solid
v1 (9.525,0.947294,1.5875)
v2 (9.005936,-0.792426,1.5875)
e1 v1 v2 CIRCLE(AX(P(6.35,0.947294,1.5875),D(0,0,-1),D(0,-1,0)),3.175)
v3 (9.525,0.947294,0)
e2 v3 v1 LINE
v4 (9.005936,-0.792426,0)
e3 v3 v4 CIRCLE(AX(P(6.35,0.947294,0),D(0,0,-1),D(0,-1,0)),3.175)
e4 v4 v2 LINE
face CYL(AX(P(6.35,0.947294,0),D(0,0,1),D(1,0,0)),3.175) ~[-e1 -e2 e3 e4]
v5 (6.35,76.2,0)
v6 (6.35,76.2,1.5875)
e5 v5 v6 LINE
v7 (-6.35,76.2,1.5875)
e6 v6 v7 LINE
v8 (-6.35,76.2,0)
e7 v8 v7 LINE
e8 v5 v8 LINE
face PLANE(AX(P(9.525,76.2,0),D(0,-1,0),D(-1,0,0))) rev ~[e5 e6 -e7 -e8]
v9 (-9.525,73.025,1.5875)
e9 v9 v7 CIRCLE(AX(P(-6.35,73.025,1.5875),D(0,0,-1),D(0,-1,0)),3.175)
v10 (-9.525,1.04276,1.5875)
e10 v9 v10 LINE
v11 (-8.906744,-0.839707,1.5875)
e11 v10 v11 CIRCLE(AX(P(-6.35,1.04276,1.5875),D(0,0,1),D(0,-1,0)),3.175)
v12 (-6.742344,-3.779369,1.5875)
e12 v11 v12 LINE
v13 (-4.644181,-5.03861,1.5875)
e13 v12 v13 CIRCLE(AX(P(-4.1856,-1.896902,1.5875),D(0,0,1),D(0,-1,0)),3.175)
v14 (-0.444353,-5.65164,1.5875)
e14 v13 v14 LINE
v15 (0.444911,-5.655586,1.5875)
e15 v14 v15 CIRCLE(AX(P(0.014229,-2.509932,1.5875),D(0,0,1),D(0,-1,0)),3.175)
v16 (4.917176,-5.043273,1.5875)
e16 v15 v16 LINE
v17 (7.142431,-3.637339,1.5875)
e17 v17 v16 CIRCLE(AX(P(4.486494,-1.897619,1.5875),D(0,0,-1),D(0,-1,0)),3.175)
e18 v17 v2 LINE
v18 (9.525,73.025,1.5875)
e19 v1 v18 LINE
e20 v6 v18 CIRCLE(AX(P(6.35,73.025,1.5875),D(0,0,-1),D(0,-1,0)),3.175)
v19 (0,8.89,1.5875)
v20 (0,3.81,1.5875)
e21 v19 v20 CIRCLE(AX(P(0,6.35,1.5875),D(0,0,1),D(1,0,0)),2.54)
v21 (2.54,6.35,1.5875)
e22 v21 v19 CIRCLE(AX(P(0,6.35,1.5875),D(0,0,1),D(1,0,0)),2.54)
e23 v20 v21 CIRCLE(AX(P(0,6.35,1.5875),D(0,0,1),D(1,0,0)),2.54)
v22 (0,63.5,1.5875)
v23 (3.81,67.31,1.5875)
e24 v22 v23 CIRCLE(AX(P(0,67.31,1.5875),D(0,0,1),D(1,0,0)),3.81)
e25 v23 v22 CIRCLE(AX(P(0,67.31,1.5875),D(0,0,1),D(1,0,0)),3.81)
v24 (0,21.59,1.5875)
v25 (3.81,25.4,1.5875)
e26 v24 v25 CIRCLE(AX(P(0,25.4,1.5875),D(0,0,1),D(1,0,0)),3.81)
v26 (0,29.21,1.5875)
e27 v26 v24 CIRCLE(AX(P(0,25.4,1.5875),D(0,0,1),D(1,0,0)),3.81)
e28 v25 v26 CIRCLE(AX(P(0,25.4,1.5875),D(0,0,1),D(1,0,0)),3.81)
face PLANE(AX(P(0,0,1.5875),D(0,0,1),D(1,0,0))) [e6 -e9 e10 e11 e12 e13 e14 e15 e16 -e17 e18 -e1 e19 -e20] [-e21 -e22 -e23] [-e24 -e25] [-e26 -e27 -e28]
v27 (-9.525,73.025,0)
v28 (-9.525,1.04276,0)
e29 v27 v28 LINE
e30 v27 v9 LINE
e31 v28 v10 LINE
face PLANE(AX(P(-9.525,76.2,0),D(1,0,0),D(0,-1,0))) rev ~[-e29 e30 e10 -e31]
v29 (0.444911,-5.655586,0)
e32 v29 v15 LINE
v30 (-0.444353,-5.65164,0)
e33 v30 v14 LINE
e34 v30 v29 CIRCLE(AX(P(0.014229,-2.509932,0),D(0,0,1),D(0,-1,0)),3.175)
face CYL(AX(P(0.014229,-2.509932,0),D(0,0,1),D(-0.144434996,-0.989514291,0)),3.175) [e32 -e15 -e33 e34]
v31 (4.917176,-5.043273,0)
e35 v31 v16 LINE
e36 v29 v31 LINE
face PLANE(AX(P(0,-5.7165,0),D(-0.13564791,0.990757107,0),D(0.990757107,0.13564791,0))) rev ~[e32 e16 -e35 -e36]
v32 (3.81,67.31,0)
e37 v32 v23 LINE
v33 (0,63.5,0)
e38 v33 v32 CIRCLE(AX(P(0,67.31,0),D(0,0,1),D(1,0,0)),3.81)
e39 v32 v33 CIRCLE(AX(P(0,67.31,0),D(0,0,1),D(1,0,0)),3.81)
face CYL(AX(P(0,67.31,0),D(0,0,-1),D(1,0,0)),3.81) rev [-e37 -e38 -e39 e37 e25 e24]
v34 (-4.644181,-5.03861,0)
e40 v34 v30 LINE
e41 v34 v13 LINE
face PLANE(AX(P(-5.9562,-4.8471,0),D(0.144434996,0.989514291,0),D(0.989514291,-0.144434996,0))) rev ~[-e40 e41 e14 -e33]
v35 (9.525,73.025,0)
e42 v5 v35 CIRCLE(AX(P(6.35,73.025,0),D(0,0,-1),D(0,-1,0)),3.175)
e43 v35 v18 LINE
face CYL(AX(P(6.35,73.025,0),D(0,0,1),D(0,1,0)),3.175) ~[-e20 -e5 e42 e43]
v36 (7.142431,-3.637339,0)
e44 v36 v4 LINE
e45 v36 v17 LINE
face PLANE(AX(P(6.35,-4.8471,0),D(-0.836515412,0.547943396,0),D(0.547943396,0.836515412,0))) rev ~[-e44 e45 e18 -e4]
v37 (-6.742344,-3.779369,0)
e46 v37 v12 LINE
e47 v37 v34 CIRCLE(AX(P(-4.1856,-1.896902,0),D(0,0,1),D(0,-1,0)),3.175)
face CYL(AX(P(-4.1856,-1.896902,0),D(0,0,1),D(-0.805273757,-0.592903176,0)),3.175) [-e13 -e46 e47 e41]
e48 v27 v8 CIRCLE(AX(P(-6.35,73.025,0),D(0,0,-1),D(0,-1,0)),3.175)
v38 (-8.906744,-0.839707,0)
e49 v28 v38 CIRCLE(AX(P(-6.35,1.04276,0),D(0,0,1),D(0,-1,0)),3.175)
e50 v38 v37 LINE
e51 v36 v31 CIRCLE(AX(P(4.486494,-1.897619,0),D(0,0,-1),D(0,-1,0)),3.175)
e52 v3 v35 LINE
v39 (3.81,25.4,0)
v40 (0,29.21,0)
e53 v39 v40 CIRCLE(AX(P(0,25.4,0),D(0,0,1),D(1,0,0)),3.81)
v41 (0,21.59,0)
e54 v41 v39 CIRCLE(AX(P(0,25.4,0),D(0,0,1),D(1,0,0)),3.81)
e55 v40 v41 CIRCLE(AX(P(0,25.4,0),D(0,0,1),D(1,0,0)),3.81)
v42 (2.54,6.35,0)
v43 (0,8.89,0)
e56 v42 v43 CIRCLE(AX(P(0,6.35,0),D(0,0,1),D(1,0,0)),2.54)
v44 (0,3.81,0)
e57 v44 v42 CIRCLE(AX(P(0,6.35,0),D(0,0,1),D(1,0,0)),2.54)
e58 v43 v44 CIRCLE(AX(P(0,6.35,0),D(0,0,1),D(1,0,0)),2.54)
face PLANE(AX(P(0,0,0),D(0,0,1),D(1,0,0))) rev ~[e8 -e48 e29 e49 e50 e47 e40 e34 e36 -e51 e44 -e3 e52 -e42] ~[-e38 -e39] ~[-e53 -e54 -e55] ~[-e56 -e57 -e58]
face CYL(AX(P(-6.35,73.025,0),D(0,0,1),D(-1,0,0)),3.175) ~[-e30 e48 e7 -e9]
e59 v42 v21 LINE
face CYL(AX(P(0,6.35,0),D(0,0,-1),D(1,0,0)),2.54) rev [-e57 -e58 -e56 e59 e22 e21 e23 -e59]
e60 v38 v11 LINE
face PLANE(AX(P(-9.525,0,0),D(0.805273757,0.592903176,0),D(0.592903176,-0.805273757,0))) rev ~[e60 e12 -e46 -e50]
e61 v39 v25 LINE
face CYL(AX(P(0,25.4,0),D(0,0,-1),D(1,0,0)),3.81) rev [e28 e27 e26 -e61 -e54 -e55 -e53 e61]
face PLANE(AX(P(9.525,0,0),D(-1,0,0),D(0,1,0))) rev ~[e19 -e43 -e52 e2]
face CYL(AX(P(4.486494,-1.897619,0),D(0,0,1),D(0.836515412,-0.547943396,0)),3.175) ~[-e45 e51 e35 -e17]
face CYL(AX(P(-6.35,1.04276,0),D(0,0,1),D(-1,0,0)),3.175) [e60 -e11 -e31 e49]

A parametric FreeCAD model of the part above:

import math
import FreeCAD as App
import Part
import Sketcher

V = App.Vector
Q = App.Units.Quantity


def edges_at(feature, points):
    """Names of the edges that pass closest to the given points."""
    edges = feature.Shape.Edges
    near = lambda p: min(range(len(edges)), key=lambda i: edges[i].distToShape(Part.Vertex(*p))[0])
    return sorted({f"Edge{near(p) + 1}" for p in points})

doc = App.newDocument("Part")
body = doc.addObject("PartDesign::Body", "Body")

sketch1 = body.newObject("Sketcher::SketchObject", "Sketch")
sketch1.AttachmentSupport = (doc.getObject("XY_Plane"), [""])
sketch1.MapMode = "FlatFace"
sketch1.addGeometry(Part.LineSegment(V(-9.5, 76.2, 0), V(-9.5, 0, 0)), False)
sketch1.addGeometry(Part.LineSegment(V(-9.5, 0, 0), V(-6, -4.8, 0)), False)
sketch1.addGeometry(Part.LineSegment(V(-6, -4.8, 0), V(0, -5.7, 0)), False)
sketch1.addGeometry(Part.LineSegment(V(0, -5.7, 0), V(6.3, -4.8, 0)), False)
sketch1.addGeometry(Part.LineSegment(V(6.3, -4.8, 0), V(9.5, 0, 0)), False)
sketch1.addGeometry(Part.LineSegment(V(9.5, 0, 0), V(9.5, 76.2, 0)), False)
sketch1.addGeometry(Part.LineSegment(V(9.5, 76.2, 0), V(-9.5, 76.2, 0)), False)
sketch1.addGeometry(Part.ArcOfCircle(Part.Circle(V(0, 6.3, 0), V(0, 0, 1), 2.5), math.radians(90), math.radians(270)), False)
sketch1.addGeometry(Part.ArcOfCircle(Part.Circle(V(0, 6.3, 0), V(0, 0, 1), 2.5), math.radians(-90), math.radians(90)), False)
sketch1.addGeometry(Part.ArcOfCircle(Part.Circle(V(0, 25.4, 0), V(0, 0, 1), 3.8), math.radians(90), math.radians(270)), False)
sketch1.addGeometry(Part.ArcOfCircle(Part.Circle(V(0, 25.4, 0), V(0, 0, 1), 3.8), math.radians(-90), math.radians(90)), False)
sketch1.addGeometry(Part.Circle(V(0, 67.3, 0), V(0, 0, 1), 3.8), False)
sketch1.addConstraint(Sketcher.Constraint("Coincident", 0, 2, 1, 1))
sketch1.addConstraint(Sketcher.Constraint("Coincident", 1, 2, 2, 1))
sketch1.addConstraint(Sketcher.Constraint("Coincident", 2, 2, 3, 1))
sketch1.addConstraint(Sketcher.Constraint("Coincident", 3, 2, 4, 1))
sketch1.addConstraint(Sketcher.Constraint("Coincident", 4, 2, 5, 1))
sketch1.addConstraint(Sketcher.Constraint("Coincident", 5, 2, 6, 1))
sketch1.addConstraint(Sketcher.Constraint("Coincident", 6, 2, 0, 1))
sketch1.addConstraint(Sketcher.Constraint("Tangent", 7, 1, 8, 2))
sketch1.addConstraint(Sketcher.Constraint("Coincident", 8, 1, 7, 2))
sketch1.addConstraint(Sketcher.Constraint("Tangent", 9, 1, 10, 2))
sketch1.addConstraint(Sketcher.Constraint("Coincident", 10, 1, 9, 2))
sketch1.addConstraint(Sketcher.Constraint("Vertical", 0))
sketch1.addConstraint(Sketcher.Constraint("Vertical", 5))
sketch1.addConstraint(Sketcher.Constraint("Horizontal", 6))
sketch1.addConstraint(Sketcher.Constraint("Equal", 10, 11))
sketch1.addConstraint(Sketcher.Constraint("Symmetric", 0, 2, 4, 2, -1, 1))
sketch1.addConstraint(Sketcher.Constraint("PointOnObject", 7, 3, -2))
sketch1.addConstraint(Sketcher.Constraint("PointOnObject", 9, 3, -2))
sketch1.addConstraint(Sketcher.Constraint("PointOnObject", 11, 3, -2))
sketch1.addConstraint(Sketcher.Constraint("PointOnObject", 0, 2, -1))
sketch1.addConstraint(Sketcher.Constraint("PointOnObject", 2, 2, -2))
sketch1.addConstraint(Sketcher.Constraint("PointOnObject", 7, 1, -2))
sketch1.addConstraint(Sketcher.Constraint("PointOnObject", 8, 1, -2))
sketch1.addConstraint(Sketcher.Constraint("PointOnObject", 9, 1, -2))
sketch1.addConstraint(Sketcher.Constraint("PointOnObject", 10, 1, -2))
sketch1.addConstraint(Sketcher.Constraint("Horizontal", 1, 2, 3, 2))
sketch1.addConstraint(Sketcher.Constraint("Equal", 1, 2))
sketch1.addConstraint(Sketcher.Constraint("Diameter", 11, Q("0.3 in")))
sketch1.addConstraint(Sketcher.Constraint("Radius", 7, Q("0.1 in")))
sketch1.addConstraint(Sketcher.Constraint("DistanceY", 0, 2, 0, 1, Q("3 in")))
sketch1.addConstraint(Sketcher.Constraint("DistanceX", 6, 2, 6, 1, Q("0.75 in")))
sketch1.addConstraint(Sketcher.Constraint("DistanceY", -1, 1, 7, 3, Q("0.25 in")))
sketch1.addConstraint(Sketcher.Constraint("DistanceX", -1, 1, 3, 2, Q("0.25 in")))
sketch1.addConstraint(Sketcher.Constraint("DistanceY", 7, 3, 9, 3, Q("0.75 in")))
sketch1.addConstraint(Sketcher.Constraint("DistanceY", 7, 3, 11, 3, Q("2.4 in")))
sketch1.addConstraint(Sketcher.Constraint("DistanceX", 1, 2, -1, 1, Q("0.2345 in")))
sketch1.addConstraint(Sketcher.Constraint("Distance", 1, 6.0192))
pad1 = body.newObject("PartDesign::Pad", "Pad")
pad1.Profile = sketch1
pad1.Length = Q("0.0625 in")
doc.recompute()

fillet = body.newObject("PartDesign::Fillet", "Fillet")
fillet.Base = (pad1, edges_at(pad1, [
    (6.35, -4.847, 0.794),
    (9.525, 0, 0.794),
    (0, -5.716, 0.794),
    (-5.956, -4.847, 0.794),
    (-9.525, 0, 0.794),
    (9.525, 76.2, 0.794),
    (-9.525, 76.2, 0.794),
]))
fillet.Radius = Q("0.125 in")

doc.recompute()
